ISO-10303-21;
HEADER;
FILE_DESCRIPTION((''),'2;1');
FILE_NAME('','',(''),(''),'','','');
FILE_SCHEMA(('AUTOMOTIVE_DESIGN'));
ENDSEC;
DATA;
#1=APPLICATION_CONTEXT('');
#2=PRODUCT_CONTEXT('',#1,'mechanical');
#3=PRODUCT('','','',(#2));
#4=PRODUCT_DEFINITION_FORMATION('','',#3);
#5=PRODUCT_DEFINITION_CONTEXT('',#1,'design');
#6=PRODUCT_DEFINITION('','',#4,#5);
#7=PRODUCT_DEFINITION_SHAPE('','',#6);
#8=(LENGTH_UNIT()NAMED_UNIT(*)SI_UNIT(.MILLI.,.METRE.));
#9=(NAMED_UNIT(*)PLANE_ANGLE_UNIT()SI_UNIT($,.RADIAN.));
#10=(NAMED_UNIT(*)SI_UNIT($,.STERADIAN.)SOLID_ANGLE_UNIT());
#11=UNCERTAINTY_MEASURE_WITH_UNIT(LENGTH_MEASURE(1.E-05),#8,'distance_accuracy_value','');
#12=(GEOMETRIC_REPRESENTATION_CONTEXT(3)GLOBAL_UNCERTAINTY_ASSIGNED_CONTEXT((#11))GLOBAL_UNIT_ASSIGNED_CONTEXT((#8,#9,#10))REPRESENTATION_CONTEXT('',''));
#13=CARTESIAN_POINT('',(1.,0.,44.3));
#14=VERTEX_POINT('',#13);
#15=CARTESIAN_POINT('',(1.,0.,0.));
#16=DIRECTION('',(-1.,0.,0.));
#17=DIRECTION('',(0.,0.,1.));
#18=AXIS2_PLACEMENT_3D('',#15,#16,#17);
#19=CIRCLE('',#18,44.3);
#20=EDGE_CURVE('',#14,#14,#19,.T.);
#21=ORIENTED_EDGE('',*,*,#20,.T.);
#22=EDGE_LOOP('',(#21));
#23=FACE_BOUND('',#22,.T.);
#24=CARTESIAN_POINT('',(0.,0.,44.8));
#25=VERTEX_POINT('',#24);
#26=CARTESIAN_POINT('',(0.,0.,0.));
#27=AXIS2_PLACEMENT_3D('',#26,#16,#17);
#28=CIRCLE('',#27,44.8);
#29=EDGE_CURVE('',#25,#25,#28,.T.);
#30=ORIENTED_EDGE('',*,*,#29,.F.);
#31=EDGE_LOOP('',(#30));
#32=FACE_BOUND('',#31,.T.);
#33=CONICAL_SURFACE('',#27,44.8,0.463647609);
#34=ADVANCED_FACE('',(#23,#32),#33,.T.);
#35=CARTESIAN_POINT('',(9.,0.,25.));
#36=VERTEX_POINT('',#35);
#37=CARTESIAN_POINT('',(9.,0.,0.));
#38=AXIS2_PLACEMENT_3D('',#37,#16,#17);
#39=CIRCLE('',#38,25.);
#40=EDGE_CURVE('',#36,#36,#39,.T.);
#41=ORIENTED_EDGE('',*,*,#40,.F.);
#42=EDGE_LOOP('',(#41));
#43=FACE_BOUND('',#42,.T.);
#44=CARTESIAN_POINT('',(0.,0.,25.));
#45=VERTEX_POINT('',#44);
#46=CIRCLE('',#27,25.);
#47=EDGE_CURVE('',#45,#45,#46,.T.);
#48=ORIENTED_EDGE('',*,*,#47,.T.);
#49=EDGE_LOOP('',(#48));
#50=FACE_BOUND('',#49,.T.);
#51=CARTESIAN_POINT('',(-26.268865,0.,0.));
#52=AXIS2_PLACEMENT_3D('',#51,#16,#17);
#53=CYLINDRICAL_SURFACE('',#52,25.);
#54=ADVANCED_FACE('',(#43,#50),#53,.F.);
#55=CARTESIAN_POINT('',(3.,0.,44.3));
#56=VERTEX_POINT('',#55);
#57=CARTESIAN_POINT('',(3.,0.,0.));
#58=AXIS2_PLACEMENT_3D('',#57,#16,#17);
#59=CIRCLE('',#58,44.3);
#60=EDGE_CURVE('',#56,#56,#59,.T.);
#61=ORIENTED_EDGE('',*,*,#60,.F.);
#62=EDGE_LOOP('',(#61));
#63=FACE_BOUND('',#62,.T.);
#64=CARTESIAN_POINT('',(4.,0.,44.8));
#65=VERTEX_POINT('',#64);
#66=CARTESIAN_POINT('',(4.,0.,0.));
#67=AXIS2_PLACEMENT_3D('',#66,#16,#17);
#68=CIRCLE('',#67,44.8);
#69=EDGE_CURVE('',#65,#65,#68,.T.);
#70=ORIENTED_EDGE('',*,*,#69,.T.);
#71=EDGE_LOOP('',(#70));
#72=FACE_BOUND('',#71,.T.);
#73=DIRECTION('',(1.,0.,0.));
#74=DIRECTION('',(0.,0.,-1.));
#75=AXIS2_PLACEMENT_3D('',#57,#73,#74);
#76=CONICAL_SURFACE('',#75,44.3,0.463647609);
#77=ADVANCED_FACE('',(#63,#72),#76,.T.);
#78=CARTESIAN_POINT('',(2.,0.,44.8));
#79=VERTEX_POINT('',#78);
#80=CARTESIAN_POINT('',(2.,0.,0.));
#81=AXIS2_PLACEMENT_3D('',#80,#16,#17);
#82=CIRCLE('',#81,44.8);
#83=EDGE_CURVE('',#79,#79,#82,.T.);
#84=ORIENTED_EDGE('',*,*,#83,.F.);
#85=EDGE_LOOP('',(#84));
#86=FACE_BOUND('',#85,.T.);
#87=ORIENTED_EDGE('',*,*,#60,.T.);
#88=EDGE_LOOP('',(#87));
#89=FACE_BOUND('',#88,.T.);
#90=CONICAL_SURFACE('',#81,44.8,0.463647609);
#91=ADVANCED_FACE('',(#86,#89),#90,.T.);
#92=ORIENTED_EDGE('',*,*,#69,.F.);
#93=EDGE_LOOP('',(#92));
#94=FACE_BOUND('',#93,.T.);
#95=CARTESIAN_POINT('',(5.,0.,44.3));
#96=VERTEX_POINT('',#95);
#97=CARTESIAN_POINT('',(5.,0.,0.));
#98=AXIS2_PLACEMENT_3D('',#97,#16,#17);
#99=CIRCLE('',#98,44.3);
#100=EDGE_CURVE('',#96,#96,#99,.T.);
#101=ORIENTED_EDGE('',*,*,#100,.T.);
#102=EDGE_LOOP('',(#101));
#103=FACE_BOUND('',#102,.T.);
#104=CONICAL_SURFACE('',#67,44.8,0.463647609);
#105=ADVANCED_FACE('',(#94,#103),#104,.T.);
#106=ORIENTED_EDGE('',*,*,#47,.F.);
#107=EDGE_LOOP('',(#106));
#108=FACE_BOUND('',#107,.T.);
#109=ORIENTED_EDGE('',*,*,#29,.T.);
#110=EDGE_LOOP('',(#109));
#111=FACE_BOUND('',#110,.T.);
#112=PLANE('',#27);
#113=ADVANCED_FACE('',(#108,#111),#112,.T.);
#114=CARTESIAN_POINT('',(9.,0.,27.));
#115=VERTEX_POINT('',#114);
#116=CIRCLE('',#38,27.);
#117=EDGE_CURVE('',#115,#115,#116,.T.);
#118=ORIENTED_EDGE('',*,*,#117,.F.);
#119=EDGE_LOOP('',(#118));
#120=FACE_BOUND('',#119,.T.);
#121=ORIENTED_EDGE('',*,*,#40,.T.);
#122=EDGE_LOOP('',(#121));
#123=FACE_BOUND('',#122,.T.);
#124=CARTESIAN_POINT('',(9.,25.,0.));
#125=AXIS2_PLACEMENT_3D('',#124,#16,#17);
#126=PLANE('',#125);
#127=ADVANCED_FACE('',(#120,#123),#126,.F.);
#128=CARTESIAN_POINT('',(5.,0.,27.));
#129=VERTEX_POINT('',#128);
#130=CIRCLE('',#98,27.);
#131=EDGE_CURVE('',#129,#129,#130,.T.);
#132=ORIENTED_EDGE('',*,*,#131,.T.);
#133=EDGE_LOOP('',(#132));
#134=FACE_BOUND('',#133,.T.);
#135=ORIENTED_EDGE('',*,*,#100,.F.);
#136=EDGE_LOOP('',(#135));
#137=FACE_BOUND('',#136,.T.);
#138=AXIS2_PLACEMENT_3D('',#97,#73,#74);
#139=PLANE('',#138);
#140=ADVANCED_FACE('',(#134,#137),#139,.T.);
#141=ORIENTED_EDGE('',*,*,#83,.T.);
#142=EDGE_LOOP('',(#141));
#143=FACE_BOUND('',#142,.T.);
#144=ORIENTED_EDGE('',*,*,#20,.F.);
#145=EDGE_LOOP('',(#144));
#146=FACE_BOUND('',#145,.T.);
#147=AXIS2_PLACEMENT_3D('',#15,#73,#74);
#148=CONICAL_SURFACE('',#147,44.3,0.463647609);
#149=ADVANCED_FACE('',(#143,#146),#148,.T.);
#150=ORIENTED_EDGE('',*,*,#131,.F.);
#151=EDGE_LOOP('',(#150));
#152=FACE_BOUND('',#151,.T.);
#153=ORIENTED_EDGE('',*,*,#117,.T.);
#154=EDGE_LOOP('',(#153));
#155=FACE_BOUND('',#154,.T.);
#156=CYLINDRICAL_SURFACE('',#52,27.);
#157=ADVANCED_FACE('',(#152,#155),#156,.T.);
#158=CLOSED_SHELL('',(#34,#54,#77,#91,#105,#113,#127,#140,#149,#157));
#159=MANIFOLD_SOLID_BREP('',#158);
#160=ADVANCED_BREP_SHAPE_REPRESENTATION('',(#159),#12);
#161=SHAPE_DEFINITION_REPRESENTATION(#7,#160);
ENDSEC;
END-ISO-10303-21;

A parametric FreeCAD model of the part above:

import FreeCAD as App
import Part
import Sketcher
from FreeCAD import Vector
Q = App.Units.Quantity


def add_polygon(sketch, points):
    """Adds a closed chain of lines whose ends are joined by coincident constraints."""
    first, n = sketch.GeometryCount, len(points)
    for a, b in zip(points, points[1:] + points[:1]):
        sketch.addGeometry(Part.LineSegment(App.Vector(*a, 0), App.Vector(*b, 0)), False)
    for i in range(n):
        sketch.addConstraint(Sketcher.Constraint("Coincident", first + i, 2, first + (i + 1) % n, 1))

doc = App.newDocument("Part")
body = doc.addObject("PartDesign::Body", "Body")

sketch1 = body.newObject("Sketcher::SketchObject", "Sketch")
sketch1.AttachmentSupport = (doc.getObject("XY_Plane"), [""])
sketch1.MapMode = "FlatFace"
add_polygon(sketch1, [(0, 25), (9, 25), (9, 27), (5, 27), (5, 44.3), (4, 44.8), (3, 44.3), (2, 44.8), (1, 44.3), (0, 44.8)])
sketch1.addConstraint([
    Sketcher.Constraint("Horizontal", 0),
    Sketcher.Constraint("Vertical", 1),
    Sketcher.Constraint("Horizontal", 2),
    Sketcher.Constraint("Vertical", 3),
    Sketcher.Constraint("Vertical", 9),
    Sketcher.Constraint("PointOnObject", 8, 2, -2),
    Sketcher.Constraint("Parallel", 4, 6),
    Sketcher.Constraint("Parallel", 5, 7),
    Sketcher.Constraint("Parallel", 6, 8),
    Sketcher.Constraint("Horizontal", 3, 2, 5, 2),
    Sketcher.Constraint("Horizontal", 4, 2, 6, 2),
    Sketcher.Constraint("Horizontal", 5, 2, 7, 2),
    Sketcher.Constraint("Horizontal", 6, 2, 8, 2),
    Sketcher.Constraint("Equal", 4, 5),
    Sketcher.Constraint("DistanceX", 0, 1, 0, 2, Q("9 mm")),
    Sketcher.Constraint("DistanceX", 2, 2, 2, 1, Q("4 mm")),
    Sketcher.Constraint("DistanceY", 1, 1, 1, 2, Q("2 mm")),
    Sketcher.Constraint("DistanceY", 3, 1, 3, 2, Q("17.3 mm")),
    Sketcher.Constraint("DistanceY", 9, 2, 9, 1, Q("19.8 mm")),
    Sketcher.Constraint("DistanceY", -1, 1, 0, 2, Q("25 mm")),
])
revolution = body.newObject("PartDesign::Revolution", "Revolution")
revolution.Profile = sketch1
revolution.ReferenceAxis = (sketch1, ["H_Axis"])
revolution.Angle = 360

doc.recompute()
